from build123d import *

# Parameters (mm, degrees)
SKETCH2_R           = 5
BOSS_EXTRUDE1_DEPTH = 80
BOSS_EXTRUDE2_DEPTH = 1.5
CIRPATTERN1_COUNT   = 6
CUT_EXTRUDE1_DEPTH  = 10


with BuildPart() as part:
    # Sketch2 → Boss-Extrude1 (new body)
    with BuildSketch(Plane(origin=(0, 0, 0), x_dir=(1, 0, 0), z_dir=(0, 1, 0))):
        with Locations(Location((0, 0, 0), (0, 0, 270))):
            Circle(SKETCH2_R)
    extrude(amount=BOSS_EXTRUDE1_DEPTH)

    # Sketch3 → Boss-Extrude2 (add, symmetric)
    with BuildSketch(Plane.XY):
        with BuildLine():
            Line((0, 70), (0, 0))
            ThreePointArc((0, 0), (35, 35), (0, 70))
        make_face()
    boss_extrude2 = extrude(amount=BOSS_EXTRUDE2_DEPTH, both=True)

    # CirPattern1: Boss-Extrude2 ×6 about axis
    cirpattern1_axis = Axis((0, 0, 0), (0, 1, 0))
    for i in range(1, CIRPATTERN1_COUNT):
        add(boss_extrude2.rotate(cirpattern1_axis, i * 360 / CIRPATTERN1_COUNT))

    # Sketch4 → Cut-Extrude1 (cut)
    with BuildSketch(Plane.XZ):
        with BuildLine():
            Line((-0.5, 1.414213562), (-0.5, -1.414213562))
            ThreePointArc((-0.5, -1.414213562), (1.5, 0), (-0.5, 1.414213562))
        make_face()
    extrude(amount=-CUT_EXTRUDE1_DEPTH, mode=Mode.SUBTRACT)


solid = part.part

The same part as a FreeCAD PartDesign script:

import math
import FreeCAD as App
import Part
import Sketcher

V = App.Vector
Q = App.Units.Quantity

doc = App.newDocument("Part")
body = doc.addObject("PartDesign::Body", "Body")

sketch1 = doc.addObject("Sketcher::SketchObject", "Sketch")
body.addObject(sketch1)
sketch1.AttachmentSupport = (doc.XZ_Plane, [""])
sketch1.MapMode = "FlatFace"
sketch1.addGeometry(Part.Circle(V(0, 0, 0), V(0, 0, 1), 5), False)
sketch1.addConstraint([
    Sketcher.Constraint("Coincident", 0, 3, -1, 1),
    Sketcher.Constraint("Diameter", 0, Q("10 mm")),
])
pad1 = doc.addObject("PartDesign::Pad", "Pad")
body.addObject(pad1)
pad1.Profile = sketch1
pad1.Length = 80
pad1.Reversed = True

sketch2 = doc.addObject("Sketcher::SketchObject", "Sketch001")
body.addObject(sketch2)
sketch2.AttachmentSupport = (doc.XY_Plane, [""])
sketch2.MapMode = "FlatFace"
sketch2.addGeometry([
    Part.LineSegment(V(0, 70, 0), V(0, 0, 0)),
    Part.ArcOfCircle(Part.Circle(V(0, 35, 0), V(0, 0, 1), 35), math.radians(-90), math.radians(90)),
], False)
sketch2.addConstraint([
    Sketcher.Constraint("Coincident", 0, 1, 1, 2),
    Sketcher.Constraint("Coincident", 1, 1, 0, 2),
    Sketcher.Constraint("Vertical", 0),
    Sketcher.Constraint("Coincident", 1, 1, -1, 1),
    Sketcher.Constraint("PointOnObject", 1, 3, -2),
    Sketcher.Constraint("Radius", 1, Q("35 mm")),
])
pad2 = doc.addObject("PartDesign::Pad", "Pad001")
body.addObject(pad2)
pad2.Profile = sketch2
pad2.Length = 3
pad2.Midplane = True
doc.recompute()

polarpattern = doc.addObject("PartDesign::PolarPattern", "PolarPattern")
body.addObject(polarpattern)
polarpattern.Originals = [pad2]
polarpattern.Axis = (doc.Y_Axis, [""])
polarpattern.Angle = 360
polarpattern.Occurrences = 6
body.Tip = polarpattern

sketch3 = doc.addObject("Sketcher::SketchObject", "Sketch002")
body.addObject(sketch3)
sketch3.AttachmentSupport = (doc.XZ_Plane, [""])
sketch3.MapMode = "FlatFace"
sketch3.addGeometry([
    Part.LineSegment(V(-0.5, 1.4, 0), V(-0.5, -1.4, 0)),
    Part.ArcOfCircle(Part.Circle(V(0, 0, 0), V(0, 0, 1), 1.5), math.radians(-109), math.radians(109)),
], False)
sketch3.addConstraint([
    Sketcher.Constraint("Coincident", 0, 1, 1, 2),
    Sketcher.Constraint("Coincident", 1, 1, 0, 2),
    Sketcher.Constraint("Vertical", 0),
    Sketcher.Constraint("Coincident", 1, 3, -1, 1),
    Sketcher.Constraint("Radius", 1, Q("1.5 mm")),
    Sketcher.Constraint("DistanceX", 0, 1, -1, 1, Q("0.5 mm")),
])
pocket1 = doc.addObject("PartDesign::Pocket", "Pocket")
body.addObject(pocket1)
pocket1.Profile = sketch3
pocket1.Length = 10

doc.recompute()
